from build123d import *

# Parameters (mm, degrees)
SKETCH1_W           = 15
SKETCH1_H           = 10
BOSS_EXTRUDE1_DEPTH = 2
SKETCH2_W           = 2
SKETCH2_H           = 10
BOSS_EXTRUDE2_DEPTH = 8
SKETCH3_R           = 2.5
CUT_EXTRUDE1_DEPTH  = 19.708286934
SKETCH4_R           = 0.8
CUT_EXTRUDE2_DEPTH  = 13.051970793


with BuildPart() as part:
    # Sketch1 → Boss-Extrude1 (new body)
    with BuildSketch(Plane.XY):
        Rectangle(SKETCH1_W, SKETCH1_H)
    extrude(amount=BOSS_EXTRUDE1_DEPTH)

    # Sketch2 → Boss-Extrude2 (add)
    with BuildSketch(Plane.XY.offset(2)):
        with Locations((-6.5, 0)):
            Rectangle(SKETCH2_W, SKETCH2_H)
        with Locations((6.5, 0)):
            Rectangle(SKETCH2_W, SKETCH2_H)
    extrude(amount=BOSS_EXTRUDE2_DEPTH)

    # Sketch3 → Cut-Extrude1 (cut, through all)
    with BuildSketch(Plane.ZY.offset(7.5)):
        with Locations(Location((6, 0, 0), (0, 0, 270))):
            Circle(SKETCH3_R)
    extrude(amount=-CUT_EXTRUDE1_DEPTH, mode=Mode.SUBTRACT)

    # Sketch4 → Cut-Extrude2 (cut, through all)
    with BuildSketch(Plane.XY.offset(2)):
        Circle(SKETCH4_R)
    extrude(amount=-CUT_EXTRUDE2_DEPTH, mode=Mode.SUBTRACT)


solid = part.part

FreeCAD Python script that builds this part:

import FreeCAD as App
import Part
import Sketcher

V = App.Vector
Q = App.Units.Quantity

doc = App.newDocument("Part")
body = doc.addObject("PartDesign::Body", "Body")

sketch1 = body.newObject("Sketcher::SketchObject", "Sketch")
sketch1.AttachmentSupport = (doc.getObject("XY_Plane"), [""])
sketch1.MapMode = "FlatFace"
sketch1.addGeometry([
    Part.LineSegment(V(-8, 5, 0), V(-8, -5, 0)),
    Part.LineSegment(V(-8, -5, 0), V(8, -5, 0)),
    Part.LineSegment(V(8, -5, 0), V(8, 5, 0)),
    Part.LineSegment(V(8, 5, 0), V(-8, 5, 0)),
], False)
sketch1.addConstraint([
    Sketcher.Constraint("Coincident", 0, 2, 1, 1),
    Sketcher.Constraint("Coincident", 1, 2, 2, 1),
    Sketcher.Constraint("Coincident", 2, 2, 3, 1),
    Sketcher.Constraint("Coincident", 3, 2, 0, 1),
    Sketcher.Constraint("Vertical", 0),
    Sketcher.Constraint("Horizontal", 1),
    Sketcher.Constraint("Vertical", 2),
    Sketcher.Constraint("Horizontal", 3),
    Sketcher.Constraint("Symmetric", 0, 2, 2, 2, -1, 1),
    Sketcher.Constraint("DistanceX", 1, 1, 1, 2, Q("15 mm")),
    Sketcher.Constraint("DistanceY", 0, 2, 0, 1, Q("10 mm")),
])
pad1 = body.newObject("PartDesign::Pad", "Pad")
pad1.Profile = sketch1
pad1.Length = 2

sketch2 = body.newObject("Sketcher::SketchObject", "Sketch001")
sketch2.AttachmentSupport = (doc.getObject("XY_Plane"), [""])
sketch2.MapMode = "FlatFace"
sketch2.AttachmentOffset = App.Placement(V(0, 0, 2), App.Rotation())
sketch2.addGeometry([
    Part.LineSegment(V(-7.5, 5, 0), V(-7.5, -5, 0)),
    Part.LineSegment(V(-7.5, -5, 0), V(-5.5, -5, 0)),
    Part.LineSegment(V(-5.5, -5, 0), V(-5.5, 5, 0)),
    Part.LineSegment(V(-5.5, 5, 0), V(-7.5, 5, 0)),
    Part.LineSegment(V(5.5, 5, 0), V(5.5, -5, 0)),
    Part.LineSegment(V(5.5, -5, 0), V(7.5, -5, 0)),
    Part.LineSegment(V(7.5, -5, 0), V(7.5, 5, 0)),
    Part.LineSegment(V(7.5, 5, 0), V(5.5, 5, 0)),
], False)
sketch2.addConstraint([
    Sketcher.Constraint("Coincident", 0, 2, 1, 1),
    Sketcher.Constraint("Coincident", 1, 2, 2, 1),
    Sketcher.Constraint("Coincident", 2, 2, 3, 1),
    Sketcher.Constraint("Coincident", 3, 2, 0, 1),
    Sketcher.Constraint("Coincident", 4, 2, 5, 1),
    Sketcher.Constraint("Coincident", 5, 2, 6, 1),
    Sketcher.Constraint("Coincident", 6, 2, 7, 1),
    Sketcher.Constraint("Coincident", 7, 2, 4, 1),
    Sketcher.Constraint("Vertical", 0),
    Sketcher.Constraint("Horizontal", 1),
    Sketcher.Constraint("Vertical", 2),
    Sketcher.Constraint("Horizontal", 3),
    Sketcher.Constraint("Vertical", 4),
    Sketcher.Constraint("Horizontal", 5),
    Sketcher.Constraint("Vertical", 6),
    Sketcher.Constraint("Horizontal", 7),
    Sketcher.Constraint("Symmetric", 2, 2, 4, 2, -1, 1),
    Sketcher.Constraint("Symmetric", 0, 2, 6, 2, -1, 1),
    Sketcher.Constraint("Horizontal", 1, 2, 4, 2),
    Sketcher.Constraint("DistanceX", 1, 1, 1, 2, Q("2 mm")),
    Sketcher.Constraint("DistanceY", 0, 2, 0, 1, Q("10 mm")),
    Sketcher.Constraint("DistanceX", 1, 2, 4, 2, Q("11 mm")),
])
pad2 = body.newObject("PartDesign::Pad", "Pad001")
pad2.Profile = sketch2
pad2.Length = 8

sketch3 = body.newObject("Sketcher::SketchObject", "Sketch002")
sketch3.AttachmentSupport = (doc.getObject("YZ_Plane"), [""])
sketch3.MapMode = "FlatFace"
sketch3.AttachmentOffset = App.Placement(V(0, 0, -7.5), App.Rotation())
sketch3.addGeometry(Part.Circle(V(0, 6, 0), V(0, 0, 1), 2.5), False)
sketch3.addConstraint([
    Sketcher.Constraint("PointOnObject", 0, 3, -2),
    Sketcher.Constraint("Diameter", 0, Q("5 mm")),
    Sketcher.Constraint("DistanceY", -1, 1, 0, 3, Q("6 mm")),
])
pocket1 = body.newObject("PartDesign::Pocket", "Pocket")
pocket1.Profile = sketch3
pocket1.Type = "ThroughAll"
pocket1.Reversed = True

sketch4 = body.newObject("Sketcher::SketchObject", "Sketch003")
sketch4.AttachmentSupport = (doc.getObject("XY_Plane"), [""])
sketch4.MapMode = "FlatFace"
sketch4.AttachmentOffset = App.Placement(V(0, 0, 2), App.Rotation())
sketch4.addGeometry(Part.Circle(V(0, 0, 0), V(0, 0, 1), 0.8), False)
sketch4.addConstraint([
    Sketcher.Constraint("Coincident", 0, 3, -1, 1),
    Sketcher.Constraint("Diameter", 0, Q("1.6 mm")),
])
pocket2 = body.newObject("PartDesign::Pocket", "Pocket001")
pocket2.Profile = sketch4
pocket2.Type = "ThroughAll"

doc.recompute()
